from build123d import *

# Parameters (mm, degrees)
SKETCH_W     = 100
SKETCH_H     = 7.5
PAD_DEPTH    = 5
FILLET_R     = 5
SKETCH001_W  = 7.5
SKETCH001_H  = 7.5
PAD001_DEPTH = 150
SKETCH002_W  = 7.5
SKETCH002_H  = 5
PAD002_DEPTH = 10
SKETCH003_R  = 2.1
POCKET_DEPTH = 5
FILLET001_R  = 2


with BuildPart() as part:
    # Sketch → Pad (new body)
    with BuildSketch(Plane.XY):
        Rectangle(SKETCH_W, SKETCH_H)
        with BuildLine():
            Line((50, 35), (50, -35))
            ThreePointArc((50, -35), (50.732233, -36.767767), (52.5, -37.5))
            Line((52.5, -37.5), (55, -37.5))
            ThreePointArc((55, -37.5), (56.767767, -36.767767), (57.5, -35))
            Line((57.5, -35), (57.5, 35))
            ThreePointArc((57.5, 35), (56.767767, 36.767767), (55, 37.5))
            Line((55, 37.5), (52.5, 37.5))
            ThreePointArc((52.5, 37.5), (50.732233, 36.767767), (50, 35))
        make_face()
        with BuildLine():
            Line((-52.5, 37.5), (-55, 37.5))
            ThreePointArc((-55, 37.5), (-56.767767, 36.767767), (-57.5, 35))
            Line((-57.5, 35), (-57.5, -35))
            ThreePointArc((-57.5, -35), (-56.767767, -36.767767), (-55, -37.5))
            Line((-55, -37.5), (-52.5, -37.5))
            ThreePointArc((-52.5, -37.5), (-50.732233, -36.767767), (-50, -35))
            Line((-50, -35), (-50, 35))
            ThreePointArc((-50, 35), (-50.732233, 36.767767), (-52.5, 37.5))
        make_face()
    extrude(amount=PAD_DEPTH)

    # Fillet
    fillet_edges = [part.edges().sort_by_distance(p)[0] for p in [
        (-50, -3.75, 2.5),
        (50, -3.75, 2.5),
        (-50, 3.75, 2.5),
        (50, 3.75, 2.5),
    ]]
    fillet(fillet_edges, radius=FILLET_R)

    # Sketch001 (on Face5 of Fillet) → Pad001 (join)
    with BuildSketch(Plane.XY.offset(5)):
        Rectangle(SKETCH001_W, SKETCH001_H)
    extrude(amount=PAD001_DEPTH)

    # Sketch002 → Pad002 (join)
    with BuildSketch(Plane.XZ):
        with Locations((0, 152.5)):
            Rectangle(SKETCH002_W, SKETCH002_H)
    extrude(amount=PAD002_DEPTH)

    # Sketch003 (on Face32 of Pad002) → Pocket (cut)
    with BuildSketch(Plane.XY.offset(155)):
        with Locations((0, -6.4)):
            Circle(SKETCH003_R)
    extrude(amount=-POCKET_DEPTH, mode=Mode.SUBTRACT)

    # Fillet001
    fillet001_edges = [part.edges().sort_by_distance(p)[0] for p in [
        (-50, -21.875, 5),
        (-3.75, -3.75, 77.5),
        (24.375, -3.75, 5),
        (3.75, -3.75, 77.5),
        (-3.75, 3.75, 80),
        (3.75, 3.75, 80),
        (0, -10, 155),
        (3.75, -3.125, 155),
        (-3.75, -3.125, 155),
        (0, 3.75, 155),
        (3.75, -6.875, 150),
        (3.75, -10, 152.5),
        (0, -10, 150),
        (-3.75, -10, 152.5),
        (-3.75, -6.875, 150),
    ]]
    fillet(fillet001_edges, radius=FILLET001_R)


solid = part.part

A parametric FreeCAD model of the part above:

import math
import FreeCAD as App
import Part
import Sketcher

V = App.Vector
Q = App.Units.Quantity


def edges_at(feature, points):
    """Names of the edges that pass closest to the given points."""
    edges = feature.Shape.Edges
    near = lambda p: min(range(len(edges)), key=lambda i: edges[i].distToShape(Part.Vertex(*p))[0])
    return sorted({f"Edge{near(p) + 1}" for p in points})


def add_polygon(sketch, points):
    """Adds a closed chain of lines whose ends are joined by coincident constraints."""
    first, n = sketch.GeometryCount, len(points)
    for a, b in zip(points, points[1:] + points[:1]):
        sketch.addGeometry(Part.LineSegment(App.Vector(*a, 0), App.Vector(*b, 0)), False)
    for i in range(n):
        sketch.addConstraint(Sketcher.Constraint("Coincident", first + i, 2, first + (i + 1) % n, 1))

doc = App.newDocument("Part")
body = doc.addObject("PartDesign::Body", "Body")

# Sketch on XY plane
sketch1 = body.newObject("Sketcher::SketchObject", "Sketch")
sketch1.AttachmentSupport = (doc.getObject("XY_Plane"), [""])
sketch1.MapMode = "FlatFace"
sketch1.addGeometry([
    Part.LineSegment(V(-50, -3.8, 0), V(50, -3.8, 0)),  # 0
    Part.LineSegment(V(50, -3.8, 0), V(50, -35, 0)),  # 1
    Part.ArcOfCircle(Part.Circle(V(52.5, -35, 0), V(0, 0, 1), 2.5), math.radians(180), math.radians(270)),  # 2
    Part.LineSegment(V(52.5, -37.5, 0), V(55, -37.5, 0)),  # 3
    Part.ArcOfCircle(Part.Circle(V(55, -35, 0), V(0, 0, 1), 2.5), math.radians(-90), math.radians(0)),  # 4
    Part.LineSegment(V(57.5, -35, 0), V(57.5, 35, 0)),  # 5
    Part.ArcOfCircle(Part.Circle(V(55, 35, 0), V(0, 0, 1), 2.5), math.radians(0), math.radians(90)),  # 6
    Part.LineSegment(V(55, 37.5, 0), V(52.5, 37.5, 0)),  # 7
    Part.ArcOfCircle(Part.Circle(V(52.5, 35, 0), V(0, 0, 1), 2.5), math.radians(90), math.radians(180)),  # 8
    Part.LineSegment(V(50, 35, 0), V(50, 3.8, 0)),  # 9
    Part.LineSegment(V(50, 3.8, 0), V(-50, 3.8, 0)),  # 10
    Part.LineSegment(V(-50, 3.8, 0), V(-50, 35, 0)),  # 11
    Part.ArcOfCircle(Part.Circle(V(-52.5, 35, 0), V(0, 0, 1), 2.5), math.radians(0), math.radians(90)),  # 12
    Part.LineSegment(V(-52.5, 37.5, 0), V(-55, 37.5, 0)),  # 13
    Part.ArcOfCircle(Part.Circle(V(-55, 35, 0), V(0, 0, 1), 2.5), math.radians(90), math.radians(180)),  # 14
    Part.LineSegment(V(-57.5, 35, 0), V(-57.5, -35, 0)),  # 15
    Part.ArcOfCircle(Part.Circle(V(-55, -35, 0), V(0, 0, 1), 2.5), math.radians(180), math.radians(270)),  # 16
    Part.LineSegment(V(-55, -37.5, 0), V(-52.5, -37.5, 0)),  # 17
    Part.ArcOfCircle(Part.Circle(V(-52.5, -35, 0), V(0, 0, 1), 2.5), math.radians(-90), math.radians(0)),  # 18
    Part.LineSegment(V(-50, -35, 0), V(-50, -3.8, 0)),  # 19
], False)
sketch1.addConstraint([
    Sketcher.Constraint("Coincident", 0, 2, 1, 1),
    Sketcher.Constraint("Tangent", 1, 2, 2, 1),
    Sketcher.Constraint("Tangent", 2, 2, 3, 1),
    Sketcher.Constraint("Tangent", 3, 2, 4, 1),
    Sketcher.Constraint("Tangent", 4, 2, 5, 1),
    Sketcher.Constraint("Tangent", 5, 2, 6, 1),
    Sketcher.Constraint("Tangent", 6, 2, 7, 1),
    Sketcher.Constraint("Tangent", 7, 2, 8, 1),
    Sketcher.Constraint("Tangent", 8, 2, 9, 1),
    Sketcher.Constraint("Coincident", 9, 2, 10, 1),
    Sketcher.Constraint("Coincident", 10, 2, 11, 1),
    Sketcher.Constraint("Tangent", 11, 2, 12, 1),
    Sketcher.Constraint("Tangent", 12, 2, 13, 1),
    Sketcher.Constraint("Tangent", 13, 2, 14, 1),
    Sketcher.Constraint("Tangent", 14, 2, 15, 1),
    Sketcher.Constraint("Tangent", 15, 2, 16, 1),
    Sketcher.Constraint("Tangent", 16, 2, 17, 1),
    Sketcher.Constraint("Tangent", 17, 2, 18, 1),
    Sketcher.Constraint("Tangent", 18, 2, 19, 1),
    Sketcher.Constraint("Coincident", 19, 2, 0, 1),
    Sketcher.Constraint("Horizontal", 0),
    Sketcher.Constraint("Vertical", 1),
    Sketcher.Constraint("Horizontal", 3),
    Sketcher.Constraint("Vertical", 5),
    Sketcher.Constraint("Horizontal", 7),
    Sketcher.Constraint("Vertical", 9),
    Sketcher.Constraint("Horizontal", 10),
    Sketcher.Constraint("Vertical", 11),
    Sketcher.Constraint("Horizontal", 13),
    Sketcher.Constraint("Vertical", 15),
    Sketcher.Constraint("Horizontal", 17),
    Sketcher.Constraint("Vertical", 19),
    Sketcher.Constraint("Equal", 2, 4),
    Sketcher.Constraint("Equal", 4, 6),
    Sketcher.Constraint("Equal", 6, 8),
    Sketcher.Constraint("Equal", 8, 12),
    Sketcher.Constraint("Equal", 12, 14),
    Sketcher.Constraint("Equal", 14, 16),
    Sketcher.Constraint("Equal", 16, 18),
    Sketcher.Constraint("Symmetric", 2, 3, 12, 3, -1, 1),
    Sketcher.Constraint("Symmetric", 6, 3, 16, 3, -1, 1),
    Sketcher.Constraint("Symmetric", 9, 2, 19, 2, -1, 1),
    Sketcher.Constraint("Symmetric", 8, 3, 12, 3, -2),
    Sketcher.Constraint("Radius", 2, Q("2.5 mm")),
    Sketcher.Constraint("DistanceX", 0, 1, 0, 2, Q("100 mm")),
    Sketcher.Constraint("DistanceY", 5, 1, 5, 2, Q("70 mm")),
    Sketcher.Constraint("DistanceX", 3, 1, 3, 2, Q("2.5 mm")),
    Sketcher.Constraint("DistanceY", 1, 2, 1, 1, Q("31.25 mm")),
])
pad1 = body.newObject("PartDesign::Pad", "Pad")
pad1.Profile = sketch1
pad1.Length = 5
doc.recompute()

fillet = body.newObject("PartDesign::Fillet", "Fillet")
fillet.Base = (pad1, edges_at(pad1, [
    (-50, -3.75, 2.5),
    (50, -3.75, 2.5),
    (-50, 3.75, 2.5),
    (50, 3.75, 2.5),
]))
fillet.Radius = 5

# Sketch on XY plane
sketch2 = body.newObject("Sketcher::SketchObject", "Sketch001")
sketch2.AttachmentSupport = (doc.getObject("XY_Plane"), [""])
sketch2.MapMode = "FlatFace"
sketch2.AttachmentOffset = App.Placement(V(0, 0, 5), App.Rotation())
add_polygon(sketch2, [(-4, 4), (-4, -4), (4, -4), (4, 4)])  # lines 0-3
sketch2.addConstraint([
    Sketcher.Constraint("Vertical", 0),
    Sketcher.Constraint("Horizontal", 1),
    Sketcher.Constraint("Vertical", 2),
    Sketcher.Constraint("Horizontal", 3),
    Sketcher.Constraint("Symmetric", 0, 2, 2, 2, -1, 1),
    Sketcher.Constraint("Equal", 3, 0),
    Sketcher.Constraint("DistanceX", 1, 1, 1, 2, Q("7.5 mm")),
])
pad2 = body.newObject("PartDesign::Pad", "Pad001")
pad2.Profile = sketch2
pad2.Length = 150

# Sketch on XZ plane
sketch3 = body.newObject("Sketcher::SketchObject", "Sketch002")
sketch3.AttachmentSupport = (doc.getObject("XZ_Plane"), [""])
sketch3.MapMode = "FlatFace"
add_polygon(sketch3, [(-4, 155), (-4, 150), (4, 150), (4, 155)])  # lines 0-3
sketch3.addConstraint([
    Sketcher.Constraint("Vertical", 0),
    Sketcher.Constraint("Horizontal", 1),
    Sketcher.Constraint("Vertical", 2),
    Sketcher.Constraint("Horizontal", 3),
    Sketcher.Constraint("DistanceY", 0, 2, 0, 1, Q("5 mm")),
    Sketcher.Constraint("DistanceX", 1, 1, 1, 2, Q("7.5 mm")),
    Sketcher.Constraint("DistanceY", -1, 1, 0, 2, Q("150 mm")),
    Sketcher.Constraint("DistanceX", 0, 2, -1, 1, Q("3.75 mm")),
])
pad3 = body.newObject("PartDesign::Pad", "Pad002")
pad3.Profile = sketch3
pad3.Length = 10

# Sketch on XY plane
sketch4 = body.newObject("Sketcher::SketchObject", "Sketch003")
sketch4.AttachmentSupport = (doc.getObject("XY_Plane"), [""])
sketch4.MapMode = "FlatFace"
sketch4.AttachmentOffset = App.Placement(V(0, 0, 155), App.Rotation())
sketch4.addGeometry(Part.Circle(V(0, -6.4, 0), V(0, 0, 1), 2.1), False)
sketch4.addConstraint([
    Sketcher.Constraint("PointOnObject", 0, 3, -2),
    Sketcher.Constraint("Diameter", 0, Q("4.2 mm")),
    Sketcher.Constraint("DistanceY", 0, 3, -1, 1, Q("6.4 mm")),
])
pocket1 = body.newObject("PartDesign::Pocket", "Pocket")
pocket1.Profile = sketch4
pocket1.Length = 5
doc.recompute()

fillet2 = body.newObject("PartDesign::Fillet", "Fillet001")
fillet2.Base = (pocket1, edges_at(pocket1, [
    (-50, -21.875, 5),
    (-3.75, -3.75, 77.5),
    (24.375, -3.75, 5),
    (3.75, -3.75, 77.5),
    (-3.75, 3.75, 80),
    (3.75, 3.75, 80),
    (0, -10, 155),
    (3.75, -3.125, 155),
    (-3.75, -3.125, 155),
    (0, 3.75, 155),
    (3.75, -6.875, 150),
    (3.75, -10, 152.5),
    (0, -10, 150),
    (-3.75, -10, 152.5),
    (-3.75, -6.875, 150),
]))
fillet2.Radius = 2

doc.recompute()
